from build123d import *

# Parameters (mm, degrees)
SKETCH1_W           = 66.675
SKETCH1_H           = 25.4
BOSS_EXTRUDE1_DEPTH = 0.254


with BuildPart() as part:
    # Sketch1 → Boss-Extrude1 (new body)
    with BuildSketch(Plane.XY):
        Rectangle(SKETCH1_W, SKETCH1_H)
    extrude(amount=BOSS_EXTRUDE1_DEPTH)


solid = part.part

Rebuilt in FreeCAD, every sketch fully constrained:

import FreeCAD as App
import Part
import Sketcher
Q = App.Units.Quantity

doc = App.newDocument("Part")
body = doc.addObject("PartDesign::Body", "Body")

# Sketch on XY plane
sketch1 = body.newObject("Sketcher::SketchObject", "Sketch")
sketch1.AttachmentSupport = (doc.getObject("XY_Plane"), [""])
sketch1.MapMode = "FlatFace"
sketch1.addGeometry(Part.LineSegment(App.Vector(-33, 13, 0), App.Vector(-33, -13, 0)), False)
sketch1.addGeometry(Part.LineSegment(App.Vector(-33, -13, 0), App.Vector(33, -13, 0)), False)
sketch1.addGeometry(Part.LineSegment(App.Vector(33, -13, 0), App.Vector(33, 13, 0)), False)
sketch1.addGeometry(Part.LineSegment(App.Vector(33, 13, 0), App.Vector(-33, 13, 0)), False)
sketch1.addConstraint(Sketcher.Constraint("Coincident", 0, 2, 1, 1))
sketch1.addConstraint(Sketcher.Constraint("Coincident", 1, 2, 2, 1))
sketch1.addConstraint(Sketcher.Constraint("Coincident", 2, 2, 3, 1))
sketch1.addConstraint(Sketcher.Constraint("Coincident", 3, 2, 0, 1))
sketch1.addConstraint(Sketcher.Constraint("Vertical", 0))
sketch1.addConstraint(Sketcher.Constraint("Horizontal", 1))
sketch1.addConstraint(Sketcher.Constraint("Vertical", 2))
sketch1.addConstraint(Sketcher.Constraint("Horizontal", 3))
sketch1.addConstraint(Sketcher.Constraint("Symmetric", 0, 2, 2, 2, -1, 1))
sketch1.addConstraint(Sketcher.Constraint("DistanceY", 0, 2, 0, 1, Q("1 in")))
sketch1.addConstraint(Sketcher.Constraint("DistanceX", 1, 1, 1, 2, Q("2.625 in")))
pad1 = body.newObject("PartDesign::Pad", "Pad")
pad1.Profile = sketch1
pad1.Length = Q("0.01 in")

doc.recompute()
